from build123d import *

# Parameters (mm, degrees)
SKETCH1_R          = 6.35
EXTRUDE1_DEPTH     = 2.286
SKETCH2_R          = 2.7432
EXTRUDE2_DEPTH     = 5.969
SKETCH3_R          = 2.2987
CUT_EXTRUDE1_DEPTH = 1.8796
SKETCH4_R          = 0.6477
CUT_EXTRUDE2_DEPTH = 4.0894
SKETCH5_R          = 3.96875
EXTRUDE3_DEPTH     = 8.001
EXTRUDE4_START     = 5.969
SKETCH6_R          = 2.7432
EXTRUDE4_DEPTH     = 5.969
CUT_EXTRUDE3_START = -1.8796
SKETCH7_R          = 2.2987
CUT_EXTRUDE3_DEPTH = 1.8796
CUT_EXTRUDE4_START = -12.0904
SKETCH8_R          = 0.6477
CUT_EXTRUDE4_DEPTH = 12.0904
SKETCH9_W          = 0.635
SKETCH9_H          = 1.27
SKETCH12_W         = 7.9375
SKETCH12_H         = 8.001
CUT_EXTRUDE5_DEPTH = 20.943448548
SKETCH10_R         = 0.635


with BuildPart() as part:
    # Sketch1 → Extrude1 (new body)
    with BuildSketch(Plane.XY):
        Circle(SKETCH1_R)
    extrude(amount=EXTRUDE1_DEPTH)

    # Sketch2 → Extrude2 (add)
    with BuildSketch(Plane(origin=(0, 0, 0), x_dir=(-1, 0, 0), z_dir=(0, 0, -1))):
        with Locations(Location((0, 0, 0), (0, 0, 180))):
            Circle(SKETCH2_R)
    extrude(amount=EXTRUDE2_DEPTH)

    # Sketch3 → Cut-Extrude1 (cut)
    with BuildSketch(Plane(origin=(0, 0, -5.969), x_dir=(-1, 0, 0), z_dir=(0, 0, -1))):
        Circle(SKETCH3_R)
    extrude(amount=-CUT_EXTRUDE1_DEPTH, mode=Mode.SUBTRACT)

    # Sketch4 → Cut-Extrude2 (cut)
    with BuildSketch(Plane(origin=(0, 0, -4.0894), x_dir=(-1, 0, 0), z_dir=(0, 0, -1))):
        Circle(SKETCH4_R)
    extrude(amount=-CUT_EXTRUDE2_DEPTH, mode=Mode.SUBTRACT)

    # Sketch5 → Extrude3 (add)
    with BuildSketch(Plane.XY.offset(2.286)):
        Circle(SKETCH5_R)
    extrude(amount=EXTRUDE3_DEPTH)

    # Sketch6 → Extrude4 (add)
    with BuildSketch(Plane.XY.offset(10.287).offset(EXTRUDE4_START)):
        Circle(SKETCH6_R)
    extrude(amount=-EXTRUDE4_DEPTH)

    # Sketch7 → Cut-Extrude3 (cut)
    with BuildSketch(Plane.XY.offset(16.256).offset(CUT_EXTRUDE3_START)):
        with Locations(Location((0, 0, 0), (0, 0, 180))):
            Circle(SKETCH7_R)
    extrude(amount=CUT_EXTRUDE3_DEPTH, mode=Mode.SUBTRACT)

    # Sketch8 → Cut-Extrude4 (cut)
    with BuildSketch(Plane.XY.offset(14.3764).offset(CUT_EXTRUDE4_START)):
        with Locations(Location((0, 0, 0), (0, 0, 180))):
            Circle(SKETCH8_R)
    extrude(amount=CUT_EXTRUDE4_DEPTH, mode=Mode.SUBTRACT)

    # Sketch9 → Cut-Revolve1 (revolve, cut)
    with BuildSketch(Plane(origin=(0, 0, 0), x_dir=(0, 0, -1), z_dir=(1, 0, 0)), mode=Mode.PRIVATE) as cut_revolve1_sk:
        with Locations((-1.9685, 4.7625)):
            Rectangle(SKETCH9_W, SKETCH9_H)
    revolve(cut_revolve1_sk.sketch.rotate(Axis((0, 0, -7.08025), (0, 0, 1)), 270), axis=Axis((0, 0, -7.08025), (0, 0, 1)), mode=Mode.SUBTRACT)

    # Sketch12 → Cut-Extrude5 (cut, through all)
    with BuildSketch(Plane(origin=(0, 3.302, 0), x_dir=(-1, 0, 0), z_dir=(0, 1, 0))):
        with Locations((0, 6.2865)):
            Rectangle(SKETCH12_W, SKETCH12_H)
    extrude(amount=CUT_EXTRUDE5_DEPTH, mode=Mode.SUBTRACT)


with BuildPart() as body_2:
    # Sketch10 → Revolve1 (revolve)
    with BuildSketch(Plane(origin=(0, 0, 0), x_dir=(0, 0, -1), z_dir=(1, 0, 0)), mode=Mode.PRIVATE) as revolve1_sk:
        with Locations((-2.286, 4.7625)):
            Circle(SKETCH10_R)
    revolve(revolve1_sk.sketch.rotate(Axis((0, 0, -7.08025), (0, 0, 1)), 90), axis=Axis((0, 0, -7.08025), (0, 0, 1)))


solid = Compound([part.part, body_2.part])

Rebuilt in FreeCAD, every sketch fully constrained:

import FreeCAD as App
import Part
import Sketcher

V = App.Vector
Q = App.Units.Quantity

doc = App.newDocument("Part")
body = doc.addObject("PartDesign::Body", "Body")

sketch1 = body.newObject("Sketcher::SketchObject", "Sketch")
sketch1.AttachmentSupport = (doc.getObject("XY_Plane"), [""])
sketch1.MapMode = "FlatFace"
sketch1.addGeometry(Part.Circle(V(0, 0, 0), V(0, 0, 1), 6), False)
sketch1.addConstraint([
    Sketcher.Constraint("Coincident", 0, 3, -1, 1),
    Sketcher.Constraint("Diameter", 0, Q("0.5 in")),
])
pad1 = body.newObject("PartDesign::Pad", "Pad")
pad1.Profile = sketch1
pad1.Length = Q("0.09 in")

sketch2 = body.newObject("Sketcher::SketchObject", "Sketch001")
sketch2.AttachmentSupport = (doc.getObject("XY_Plane"), [""])
sketch2.MapMode = "FlatFace"
sketch2.addGeometry(Part.Circle(V(0, 0, 0), V(0, 0, 1), 2.7), False)
sketch2.addConstraint([
    Sketcher.Constraint("Coincident", 0, 3, -1, 1),
    Sketcher.Constraint("Diameter", 0, Q("0.216 in")),
])
pad2 = body.newObject("PartDesign::Pad", "Pad001")
pad2.Profile = sketch2
pad2.Length = Q("0.235 in")
pad2.Reversed = True

sketch3 = body.newObject("Sketcher::SketchObject", "Sketch002")
sketch3.AttachmentSupport = (doc.getObject("XY_Plane"), [""])
sketch3.MapMode = "FlatFace"
sketch3.AttachmentOffset = App.Placement(V(0, 0, -0.235 * 25.4), App.Rotation())
sketch3.addGeometry(Part.Circle(V(0, 0, 0), V(0, 0, 1), 2.3), False)
sketch3.addConstraint([
    Sketcher.Constraint("Coincident", 0, 3, -1, 1),
    Sketcher.Constraint("Diameter", 0, Q("0.181 in")),
])
pocket1 = body.newObject("PartDesign::Pocket", "Pocket")
pocket1.Profile = sketch3
pocket1.Length = Q("0.074 in")
pocket1.Reversed = True

sketch4 = body.newObject("Sketcher::SketchObject", "Sketch003")
sketch4.AttachmentSupport = (doc.getObject("XY_Plane"), [""])
sketch4.MapMode = "FlatFace"
sketch4.AttachmentOffset = App.Placement(V(0, 0, -0.161 * 25.4), App.Rotation())
sketch4.addGeometry(Part.Circle(V(0, 0, 0), V(0, 0, 1), 0.6), False)
sketch4.addConstraint([
    Sketcher.Constraint("Coincident", 0, 3, -1, 1),
    Sketcher.Constraint("Diameter", 0, Q("0.051 in")),
])
pocket2 = body.newObject("PartDesign::Pocket", "Pocket001")
pocket2.Profile = sketch4
pocket2.Length = Q("0.161 in")
pocket2.Reversed = True

sketch5 = body.newObject("Sketcher::SketchObject", "Sketch004")
sketch5.AttachmentSupport = (doc.getObject("XY_Plane"), [""])
sketch5.MapMode = "FlatFace"
sketch5.AttachmentOffset = App.Placement(V(0, 0, 0.09 * 25.4), App.Rotation())
sketch5.addGeometry(Part.Circle(V(0, 0, 0), V(0, 0, 1), 4), False)
sketch5.addConstraint([
    Sketcher.Constraint("Coincident", 0, 3, -1, 1),
    Sketcher.Constraint("Diameter", 0, Q("0.3125 in")),
])
pad3 = body.newObject("PartDesign::Pad", "Pad002")
pad3.Profile = sketch5
pad3.Length = Q("0.315 in")

sketch6 = body.newObject("Sketcher::SketchObject", "Sketch005")
sketch6.AttachmentSupport = (doc.getObject("XY_Plane"), [""])
sketch6.MapMode = "FlatFace"
sketch6.AttachmentOffset = App.Placement(V(0, 0, 0.64 * 25.4), App.Rotation())
sketch6.addGeometry(Part.Circle(V(0, 0, 0), V(0, 0, 1), 2.7), False)
sketch6.addConstraint([
    Sketcher.Constraint("Coincident", 0, 3, -1, 1),
    Sketcher.Constraint("Diameter", 0, Q("0.216 in")),
])
pad4 = body.newObject("PartDesign::Pad", "Pad003")
pad4.Profile = sketch6
pad4.Length = Q("0.235 in")
pad4.Reversed = True

sketch7 = body.newObject("Sketcher::SketchObject", "Sketch006")
sketch7.AttachmentSupport = (doc.getObject("XY_Plane"), [""])
sketch7.MapMode = "FlatFace"
sketch7.AttachmentOffset = App.Placement(V(0, 0, 0.566 * 25.4), App.Rotation())
sketch7.addGeometry(Part.Circle(V(0, 0, 0), V(0, 0, 1), 2.3), False)
sketch7.addConstraint([
    Sketcher.Constraint("Coincident", 0, 3, -1, 1),
    Sketcher.Constraint("Diameter", 0, Q("0.181 in")),
])
pocket3 = body.newObject("PartDesign::Pocket", "Pocket002")
pocket3.Profile = sketch7
pocket3.Length = Q("0.074 in")
pocket3.Reversed = True

sketch8 = body.newObject("Sketcher::SketchObject", "Sketch007")
sketch8.AttachmentSupport = (doc.getObject("XY_Plane"), [""])
sketch8.MapMode = "FlatFace"
sketch8.AttachmentOffset = App.Placement(V(0, 0, 0.09 * 25.4), App.Rotation())
sketch8.addGeometry(Part.Circle(V(0, 0, 0), V(0, 0, 1), 0.6), False)
sketch8.addConstraint([
    Sketcher.Constraint("Coincident", 0, 3, -1, 1),
    Sketcher.Constraint("Diameter", 0, Q("0.051 in")),
])
pocket4 = body.newObject("PartDesign::Pocket", "Pocket003")
pocket4.Profile = sketch8
pocket4.Length = Q("0.476 in")
pocket4.Reversed = True

sketch9 = body.newObject("Sketcher::SketchObject", "Sketch008")
sketch9.AttachmentSupport = (doc.getObject("YZ_Plane"), [""])
sketch9.MapMode = "FlatFace"
sketch9.addGeometry([
    Part.LineSegment(V(5.4, 2.3, 0), V(4.1, 2.3, 0)),
    Part.LineSegment(V(4.1, 2.3, 0), V(4.1, 1.7, 0)),
    Part.LineSegment(V(4.1, 1.7, 0), V(5.4, 1.7, 0)),
    Part.LineSegment(V(5.4, 1.7, 0), V(5.4, 2.3, 0)),
], False)
sketch9.addConstraint([
    Sketcher.Constraint("Coincident", 0, 2, 1, 1),
    Sketcher.Constraint("Coincident", 1, 2, 2, 1),
    Sketcher.Constraint("Coincident", 2, 2, 3, 1),
    Sketcher.Constraint("Coincident", 3, 2, 0, 1),
    Sketcher.Constraint("Horizontal", 0),
    Sketcher.Constraint("Vertical", 1),
    Sketcher.Constraint("Horizontal", 2),
    Sketcher.Constraint("Vertical", 3),
    Sketcher.Constraint("DistanceX", 0, 2, 0, 1, Q("0.05 in")),
    Sketcher.Constraint("DistanceY", 1, 2, 1, 1, Q("0.025 in")),
    Sketcher.Constraint("DistanceY", -1, 1, 0, 2, Q("0.09 in")),
    Sketcher.Constraint("DistanceX", -1, 1, 0, 2, Q("0.1625 in")),
])
groove = body.newObject("PartDesign::Groove", "Groove")
groove.Profile = sketch9
groove.ReferenceAxis = (sketch9, ["V_Axis"])
groove.Angle = 360

sketch10 = body.newObject("Sketcher::SketchObject", "Sketch009")
sketch10.AttachmentSupport = (doc.getObject("XZ_Plane"), [""])
sketch10.MapMode = "FlatFace"
sketch10.AttachmentOffset = App.Placement(V(0, 0, -0.13 * 25.4), App.Rotation())
sketch10.addGeometry([
    Part.LineSegment(V(4, 10, 0), V(4, 2, 0)),
    Part.LineSegment(V(4, 2, 0), V(-4, 2, 0)),
    Part.LineSegment(V(-4, 2, 0), V(-4, 10, 0)),
    Part.LineSegment(V(-4, 10, 0), V(4, 10, 0)),
], False)
sketch10.addConstraint([
    Sketcher.Constraint("Coincident", 0, 2, 1, 1),
    Sketcher.Constraint("Coincident", 1, 2, 2, 1),
    Sketcher.Constraint("Coincident", 2, 2, 3, 1),
    Sketcher.Constraint("Coincident", 3, 2, 0, 1),
    Sketcher.Constraint("Vertical", 0),
    Sketcher.Constraint("Horizontal", 1),
    Sketcher.Constraint("Vertical", 2),
    Sketcher.Constraint("Horizontal", 3),
    Sketcher.Constraint("DistanceX", 1, 2, 1, 1, Q("0.3125 in")),
    Sketcher.Constraint("DistanceY", 0, 2, 0, 1, Q("0.315 in")),
    Sketcher.Constraint("DistanceY", -1, 1, 0, 2, Q("0.09 in")),
    Sketcher.Constraint("DistanceX", -1, 1, 0, 2, Q("0.15625 in")),
])
pocket5 = body.newObject("PartDesign::Pocket", "Pocket004")
pocket5.Profile = sketch10
pocket5.Type = "ThroughAll"
body2 = doc.addObject("PartDesign::Body", "Body001")

sketch11 = body2.newObject("Sketcher::SketchObject", "Sketch010")
sketch11.AttachmentSupport = (doc.getObject("YZ_Plane001"), [""])
sketch11.MapMode = "FlatFace"
sketch11.addGeometry(Part.Circle(V(4.8, 2.3, 0), V(0, 0, 1), 0.6), False)
sketch11.addConstraint([
    Sketcher.Constraint("Diameter", 0, Q("0.05 in")),
    Sketcher.Constraint("DistanceY", -1, 1, 0, 3, Q("0.09 in")),
    Sketcher.Constraint("DistanceX", -1, 1, 0, 3, Q("0.1875 in")),
])
revolution = body2.newObject("PartDesign::Revolution", "Revolution")
revolution.Profile = sketch11
revolution.ReferenceAxis = (sketch11, ["V_Axis"])
revolution.Angle = 360

doc.recompute()
